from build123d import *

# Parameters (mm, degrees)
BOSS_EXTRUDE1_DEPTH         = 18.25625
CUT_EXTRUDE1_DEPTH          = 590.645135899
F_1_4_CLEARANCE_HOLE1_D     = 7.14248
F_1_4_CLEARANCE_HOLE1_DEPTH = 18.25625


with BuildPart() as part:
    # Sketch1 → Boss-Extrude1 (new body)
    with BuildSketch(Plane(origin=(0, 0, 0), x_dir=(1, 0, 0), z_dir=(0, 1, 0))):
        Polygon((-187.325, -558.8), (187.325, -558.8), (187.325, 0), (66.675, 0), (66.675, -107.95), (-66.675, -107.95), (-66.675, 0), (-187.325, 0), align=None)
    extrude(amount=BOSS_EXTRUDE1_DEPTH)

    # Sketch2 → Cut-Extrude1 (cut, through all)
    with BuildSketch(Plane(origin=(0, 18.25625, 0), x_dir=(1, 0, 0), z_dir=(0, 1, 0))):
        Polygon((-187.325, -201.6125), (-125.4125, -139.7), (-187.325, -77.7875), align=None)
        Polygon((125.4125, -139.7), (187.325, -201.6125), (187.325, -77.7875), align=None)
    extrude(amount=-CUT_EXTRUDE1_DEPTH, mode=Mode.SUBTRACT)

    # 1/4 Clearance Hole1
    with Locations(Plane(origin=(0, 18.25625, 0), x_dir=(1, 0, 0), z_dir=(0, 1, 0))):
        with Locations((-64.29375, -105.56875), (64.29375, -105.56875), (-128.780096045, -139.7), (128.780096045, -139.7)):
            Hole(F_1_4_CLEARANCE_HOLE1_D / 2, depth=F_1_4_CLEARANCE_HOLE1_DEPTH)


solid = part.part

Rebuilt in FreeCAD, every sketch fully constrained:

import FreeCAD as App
import Part
import Sketcher
Q = App.Units.Quantity


def add_polygon(sketch, points):
    """Adds a closed chain of lines whose ends are joined by coincident constraints."""
    first, n = sketch.GeometryCount, len(points)
    for a, b in zip(points, points[1:] + points[:1]):
        sketch.addGeometry(Part.LineSegment(App.Vector(*a, 0), App.Vector(*b, 0)), False)
    for i in range(n):
        sketch.addConstraint(Sketcher.Constraint("Coincident", first + i, 2, first + (i + 1) % n, 1))

doc = App.newDocument("Part")
body = doc.addObject("PartDesign::Body", "Body")

# Sketch on XZ plane
sketch1 = body.newObject("Sketcher::SketchObject", "Sketch")
sketch1.AttachmentSupport = (doc.getObject("XZ_Plane"), [""])
sketch1.MapMode = "FlatFace"
add_polygon(sketch1, [(-187, 559), (187, 559), (187, 0), (67, 0), (67, 108), (-67, 108), (-67, 0), (-187, 0)])  # lines 0-7
sketch1.addConstraint([
    Sketcher.Constraint("Horizontal", 0),
    Sketcher.Constraint("Vertical", 1),
    Sketcher.Constraint("Horizontal", 2),
    Sketcher.Constraint("Vertical", 3),
    Sketcher.Constraint("Horizontal", 4),
    Sketcher.Constraint("Vertical", 5),
    Sketcher.Constraint("Horizontal", 6),
    Sketcher.Constraint("Vertical", 7),
    Sketcher.Constraint("Symmetric", 2, 2, 5, 2, -1, 1),
    Sketcher.Constraint("Symmetric", 1, 2, 6, 2, -2),
    Sketcher.Constraint("DistanceY", 1, 2, 1, 1, Q("22 in")),
    Sketcher.Constraint("DistanceX", 4, 2, 1, 2, Q("10 in")),
    Sketcher.Constraint("DistanceX", 0, 1, 0, 2, Q("14.75 in")),
    Sketcher.Constraint("DistanceY", 3, 1, 3, 2, Q("4.25 in")),
])
pad1 = body.newObject("PartDesign::Pad", "Pad")
pad1.Profile = sketch1
pad1.Length = Q("0.71875 in")
pad1.Reversed = True

# Sketch on XZ plane
sketch2 = body.newObject("Sketcher::SketchObject", "Sketch001")
sketch2.AttachmentSupport = (doc.getObject("XZ_Plane"), [""])
sketch2.MapMode = "FlatFace"
sketch2.AttachmentOffset = App.Placement(App.Vector(0, 0, -0.71875 * 25.4), App.Rotation())
add_polygon(sketch2, [(-187, 202), (-125, 140), (-187, 78)])  # lines 0-2
add_polygon(sketch2, [(125, 140), (187, 202), (187, 78)])  # lines 3-5
sketch2.addConstraint([
    Sketcher.Constraint("Vertical", 2),
    Sketcher.Constraint("Vertical", 4),
    Sketcher.Constraint("Symmetric", 2, 2, 3, 2, -2),
    Sketcher.Constraint("Symmetric", 0, 2, 5, 2, -2),
    Sketcher.Constraint("Perpendicular", 0, 1),
    Sketcher.Constraint("Parallel", 1, 3),
    Sketcher.Constraint("Perpendicular", 3, 5),
    Sketcher.Constraint("DistanceY", -1, 1, 0, 2, Q("5.5 in")),
    Sketcher.Constraint("DistanceY", 2, 1, 2, 2, Q("4.875 in")),
    Sketcher.Constraint("DistanceX", 2, 2, 3, 2, Q("14.75 in")),
])
pocket1 = body.newObject("PartDesign::Pocket", "Pocket")
pocket1.Profile = sketch2
pocket1.Type = "ThroughAll"
pocket1.Reversed = True

# Sketch on XZ plane
sketch3 = body.newObject("Sketcher::SketchObject", "Sketch002")
sketch3.AttachmentSupport = (doc.getObject("XZ_Plane"), [""])
sketch3.MapMode = "FlatFace"
sketch3.AttachmentOffset = App.Placement(App.Vector(0, 0, -0.71875 * 25.4), App.Rotation())
sketch3.addGeometry([
    Part.Circle(App.Vector(-64.3, 105.6, 0), App.Vector(0, 0, 1), 3.6),
    Part.Circle(App.Vector(64.3, 105.6, 0), App.Vector(0, 0, 1), 3.6),
    Part.Circle(App.Vector(-128.8, 139.7, 0), App.Vector(0, 0, 1), 3.6),
    Part.Circle(App.Vector(128.8, 139.7, 0), App.Vector(0, 0, 1), 3.6),
], False)
sketch3.addConstraint([
    Sketcher.Constraint("Equal", 0, 1),
    Sketcher.Constraint("Equal", 1, 2),
    Sketcher.Constraint("Equal", 2, 3),
    Sketcher.Constraint("Symmetric", 0, 3, 1, 3, -2),
    Sketcher.Constraint("Symmetric", 2, 3, 3, 3, -2),
    Sketcher.Constraint("Diameter", 0, Q("0.2812 in")),
    Sketcher.Constraint("DistanceY", -1, 1, 2, 3, Q("5.5 in")),
    Sketcher.Constraint("DistanceX", 0, 3, -1, 1, Q("2.53125 in")),
    Sketcher.Constraint("DistanceY", -1, 1, 0, 3, Q("4.15625 in")),
    Sketcher.Constraint("DistanceX", 2, 3, -1, 1, 128.780096),
])
doc.recompute()
hole = body.newObject("PartDesign::Hole", "Hole")
hole.Profile = sketch3
hole.ThreadType = "None"
hole.Diameter = Q("0.2812 in")
hole.DepthType = "Dimension"
hole.Depth = Q("0.71875 in")
hole.DrillPoint = "Flat"
hole.Reversed = True

doc.recompute()
